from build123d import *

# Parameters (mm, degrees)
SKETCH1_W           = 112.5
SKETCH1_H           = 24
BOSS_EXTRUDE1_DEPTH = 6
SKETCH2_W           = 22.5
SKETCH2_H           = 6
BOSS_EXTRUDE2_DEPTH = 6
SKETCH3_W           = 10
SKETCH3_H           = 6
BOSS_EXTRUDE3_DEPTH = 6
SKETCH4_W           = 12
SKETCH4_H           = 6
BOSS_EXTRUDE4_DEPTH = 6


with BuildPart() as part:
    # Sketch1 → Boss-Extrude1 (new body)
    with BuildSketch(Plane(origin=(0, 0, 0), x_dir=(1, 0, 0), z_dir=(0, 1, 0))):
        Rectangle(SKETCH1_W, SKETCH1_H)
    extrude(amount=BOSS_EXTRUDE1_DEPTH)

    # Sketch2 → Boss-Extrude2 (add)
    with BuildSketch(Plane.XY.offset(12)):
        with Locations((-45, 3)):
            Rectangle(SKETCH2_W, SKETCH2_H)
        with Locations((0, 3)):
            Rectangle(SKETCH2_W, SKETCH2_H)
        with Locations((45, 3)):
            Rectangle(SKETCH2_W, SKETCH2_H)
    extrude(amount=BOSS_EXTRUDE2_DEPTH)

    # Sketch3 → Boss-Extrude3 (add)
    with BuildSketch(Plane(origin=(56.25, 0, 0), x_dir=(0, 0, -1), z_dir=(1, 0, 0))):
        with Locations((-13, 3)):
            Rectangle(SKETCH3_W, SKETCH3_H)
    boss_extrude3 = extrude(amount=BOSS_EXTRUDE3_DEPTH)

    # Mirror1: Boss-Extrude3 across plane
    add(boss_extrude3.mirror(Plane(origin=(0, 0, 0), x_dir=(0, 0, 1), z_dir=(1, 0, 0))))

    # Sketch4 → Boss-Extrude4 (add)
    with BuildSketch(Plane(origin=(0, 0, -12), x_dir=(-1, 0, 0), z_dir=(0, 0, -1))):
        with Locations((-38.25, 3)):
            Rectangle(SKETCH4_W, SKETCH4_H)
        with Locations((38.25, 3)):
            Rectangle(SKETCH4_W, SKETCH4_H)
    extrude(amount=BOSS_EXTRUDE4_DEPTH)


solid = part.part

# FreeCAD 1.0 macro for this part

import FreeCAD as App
import Part
import Sketcher

V = App.Vector
Q = App.Units.Quantity


def add_polygon(sketch, points):
    """Adds a closed chain of lines whose ends are joined by coincident constraints."""
    first, n = sketch.GeometryCount, len(points)
    for a, b in zip(points, points[1:] + points[:1]):
        sketch.addGeometry(Part.LineSegment(App.Vector(*a, 0), App.Vector(*b, 0)), False)
    for i in range(n):
        sketch.addConstraint(Sketcher.Constraint("Coincident", first + i, 2, first + (i + 1) % n, 1))

doc = App.newDocument("Part")
body = doc.addObject("PartDesign::Body", "Body")

sketch1 = doc.addObject("Sketcher::SketchObject", "Sketch")
body.addObject(sketch1)
sketch1.AttachmentSupport = (doc.XZ_Plane, [""])
sketch1.MapMode = "FlatFace"
add_polygon(sketch1, [(-56, -12), (-56, 12), (56, 12), (56, -12)])
sketch1.addConstraint([
    Sketcher.Constraint("Vertical", 0),
    Sketcher.Constraint("Horizontal", 1),
    Sketcher.Constraint("Vertical", 2),
    Sketcher.Constraint("Horizontal", 3),
    Sketcher.Constraint("Symmetric", 0, 2, 2, 2, -1, 1),
    Sketcher.Constraint("DistanceY", 0, 1, 0, 2, Q("24 mm")),
    Sketcher.Constraint("DistanceX", 1, 1, 1, 2, Q("112.5 mm")),
])
pad1 = doc.addObject("PartDesign::Pad", "Pad")
body.addObject(pad1)
pad1.Profile = sketch1
pad1.Length = 6
pad1.Reversed = True

sketch2 = doc.addObject("Sketcher::SketchObject", "Sketch001")
body.addObject(sketch2)
sketch2.AttachmentSupport = (doc.XY_Plane, [""])
sketch2.MapMode = "FlatFace"
sketch2.AttachmentOffset = App.Placement(V(0, 0, 12), App.Rotation())
add_polygon(sketch2, [(-56, 6), (-56, 0), (-34, 0), (-34, 6)])
add_polygon(sketch2, [(-11, 6), (-11, 0), (11, 0), (11, 6)])
add_polygon(sketch2, [(34, 6), (34, 0), (56, 0), (56, 6)])
sketch2.addConstraint([
    Sketcher.Constraint("Vertical", 0),
    Sketcher.Constraint("Horizontal", 1),
    Sketcher.Constraint("Vertical", 2),
    Sketcher.Constraint("Horizontal", 3),
    Sketcher.Constraint("Vertical", 4),
    Sketcher.Constraint("Horizontal", 5),
    Sketcher.Constraint("Vertical", 6),
    Sketcher.Constraint("Horizontal", 7),
    Sketcher.Constraint("Vertical", 8),
    Sketcher.Constraint("Horizontal", 9),
    Sketcher.Constraint("Vertical", 10),
    Sketcher.Constraint("Horizontal", 11),
    Sketcher.Constraint("Symmetric", 4, 2, 5, 2, -1, 1),
    Sketcher.Constraint("Symmetric", 1, 2, 8, 2, -1, 1),
    Sketcher.Constraint("Symmetric", 0, 2, 9, 2, -2),
    Sketcher.Constraint("Horizontal", 3, 2, 6, 2),
    Sketcher.Constraint("Horizontal", 7, 2, 10, 2),
    Sketcher.Constraint("Equal", 3, 5),
    Sketcher.Constraint("DistanceY", 0, 2, 0, 1, Q("6 mm")),
    Sketcher.Constraint("DistanceX", 1, 1, 1, 2, Q("22.5 mm")),
    Sketcher.Constraint("DistanceX", 0, 2, 4, 2, Q("45 mm")),
])
pad2 = doc.addObject("PartDesign::Pad", "Pad001")
body.addObject(pad2)
pad2.Profile = sketch2
pad2.Length = 6

sketch3 = doc.addObject("Sketcher::SketchObject", "Sketch002")
body.addObject(sketch3)
sketch3.AttachmentSupport = (doc.YZ_Plane, [""])
sketch3.MapMode = "FlatFace"
sketch3.AttachmentOffset = App.Placement(V(0, 0, 56.25), App.Rotation())
add_polygon(sketch3, [(6, 18), (0, 18), (0, 8), (6, 8)])
sketch3.addConstraint([
    Sketcher.Constraint("Horizontal", 0),
    Sketcher.Constraint("Vertical", 1),
    Sketcher.Constraint("Horizontal", 2),
    Sketcher.Constraint("Vertical", 3),
    Sketcher.Constraint("PointOnObject", 0, 2, -2),
    Sketcher.Constraint("DistanceX", 0, 2, 0, 1, Q("6 mm")),
    Sketcher.Constraint("DistanceY", 1, 2, 1, 1, Q("10 mm")),
    Sketcher.Constraint("DistanceY", -1, 1, 0, 2, Q("18 mm")),
])
pad3 = doc.addObject("PartDesign::Pad", "Pad002")
body.addObject(pad3)
pad3.Profile = sketch3
pad3.Length = 6
doc.recompute()

mirrored = doc.addObject("PartDesign::Mirrored", "Mirrored")
body.addObject(mirrored)
mirrored.Originals = [pad3]
mirrored.MirrorPlane = (doc.YZ_Plane, [""])
body.Tip = mirrored

sketch4 = doc.addObject("Sketcher::SketchObject", "Sketch003")
body.addObject(sketch4)
sketch4.AttachmentSupport = (doc.XY_Plane, [""])
sketch4.MapMode = "FlatFace"
sketch4.AttachmentOffset = App.Placement(V(0, 0, -12), App.Rotation())
add_polygon(sketch4, [(44, 6), (44, 0), (32, 0), (32, 6)])
add_polygon(sketch4, [(-32, 6), (-32, 0), (-44, 0), (-44, 6)])
sketch4.addConstraint([
    Sketcher.Constraint("Vertical", 0),
    Sketcher.Constraint("Horizontal", 1),
    Sketcher.Constraint("Vertical", 2),
    Sketcher.Constraint("Horizontal", 3),
    Sketcher.Constraint("Vertical", 4),
    Sketcher.Constraint("Horizontal", 5),
    Sketcher.Constraint("Vertical", 6),
    Sketcher.Constraint("Horizontal", 7),
    Sketcher.Constraint("Symmetric", 1, 2, 4, 2, -1, 1),
    Sketcher.Constraint("Symmetric", 0, 2, 5, 2, -2),
    Sketcher.Constraint("Horizontal", 3, 2, 6, 2),
    Sketcher.Constraint("DistanceX", 1, 2, 1, 1, Q("12 mm")),
    Sketcher.Constraint("DistanceY", 0, 2, 0, 1, Q("6 mm")),
    Sketcher.Constraint("DistanceX", 4, 2, 1, 2, Q("64.5 mm")),
])
pad4 = doc.addObject("PartDesign::Pad", "Pad003")
body.addObject(pad4)
pad4.Profile = sketch4
pad4.Length = 6
pad4.Reversed = True

doc.recompute()
